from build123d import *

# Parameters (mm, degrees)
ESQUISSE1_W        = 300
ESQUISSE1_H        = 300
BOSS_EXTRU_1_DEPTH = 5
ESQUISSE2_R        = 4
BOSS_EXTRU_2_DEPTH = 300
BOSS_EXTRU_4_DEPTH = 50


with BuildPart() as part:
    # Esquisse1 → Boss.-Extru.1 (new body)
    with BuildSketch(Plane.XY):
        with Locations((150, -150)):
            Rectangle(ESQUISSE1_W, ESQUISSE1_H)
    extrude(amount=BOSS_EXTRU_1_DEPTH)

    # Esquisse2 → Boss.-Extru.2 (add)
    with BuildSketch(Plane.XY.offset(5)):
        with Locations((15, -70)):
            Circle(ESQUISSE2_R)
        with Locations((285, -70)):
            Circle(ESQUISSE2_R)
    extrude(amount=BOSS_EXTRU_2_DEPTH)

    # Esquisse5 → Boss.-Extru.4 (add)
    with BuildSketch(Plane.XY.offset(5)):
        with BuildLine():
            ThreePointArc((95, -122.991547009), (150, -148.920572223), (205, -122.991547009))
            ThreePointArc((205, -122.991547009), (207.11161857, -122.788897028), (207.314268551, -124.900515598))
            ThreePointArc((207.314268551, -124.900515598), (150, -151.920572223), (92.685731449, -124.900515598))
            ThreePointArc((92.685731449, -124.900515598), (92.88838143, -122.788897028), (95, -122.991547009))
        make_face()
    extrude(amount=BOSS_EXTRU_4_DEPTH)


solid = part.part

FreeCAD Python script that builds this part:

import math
import FreeCAD as App
import Part
import Sketcher
from FreeCAD import Vector

doc = App.newDocument("Part")
body = doc.addObject("PartDesign::Body", "Body")

# Sketch on XY plane
sketch1 = body.newObject("Sketcher::SketchObject", "Sketch")
sketch1.AttachmentSupport = (doc.getObject("XY_Plane"), [""])
sketch1.MapMode = "FlatFace"
sketch1.addGeometry(Part.LineSegment(Vector(0, 0, 0), Vector(0, -300, 0)), False)
sketch1.addGeometry(Part.LineSegment(Vector(0, -300, 0), Vector(300, -300, 0)), False)
sketch1.addGeometry(Part.LineSegment(Vector(300, -300, 0), Vector(300, 0, 0)), False)
sketch1.addGeometry(Part.LineSegment(Vector(300, 0, 0), Vector(0, 0, 0)), False)
sketch1.addConstraint(Sketcher.Constraint("Coincident", 0, 2, 1, 1))
sketch1.addConstraint(Sketcher.Constraint("Coincident", 1, 2, 2, 1))
sketch1.addConstraint(Sketcher.Constraint("Coincident", 2, 2, 3, 1))
sketch1.addConstraint(Sketcher.Constraint("Coincident", 3, 2, 0, 1))
sketch1.addConstraint(Sketcher.Constraint("Vertical", 0))
sketch1.addConstraint(Sketcher.Constraint("Horizontal", 1))
sketch1.addConstraint(Sketcher.Constraint("Vertical", 2))
sketch1.addConstraint(Sketcher.Constraint("Horizontal", 3))
sketch1.addConstraint(Sketcher.Constraint("Coincident", 3, 2, -1, 1))
sketch1.addConstraint(Sketcher.Constraint("Equal", 3, 0))
sketch1.addConstraint(Sketcher.Constraint("DistanceX", 1, 1, 1, 2, 300.0))
pad1 = body.newObject("PartDesign::Pad", "Pad")
pad1.Profile = sketch1
pad1.Length = 5

# Sketch on XY plane
sketch2 = body.newObject("Sketcher::SketchObject", "Sketch001")
sketch2.AttachmentSupport = (doc.getObject("XY_Plane"), [""])
sketch2.MapMode = "FlatFace"
sketch2.AttachmentOffset = App.Placement(Vector(0, 0, 5), App.Rotation())
sketch2.addGeometry(Part.Circle(Vector(15, -70, 0), Vector(0, 0, 1), 4), False)
sketch2.addGeometry(Part.Circle(Vector(285, -70, 0), Vector(0, 0, 1), 4), False)
sketch2.addConstraint(Sketcher.Constraint("Equal", 0, 1))
sketch2.addConstraint(Sketcher.Constraint("Horizontal", 0, 3, 1, 3))
sketch2.addConstraint(Sketcher.Constraint("Diameter", 0, 8.0))
sketch2.addConstraint(Sketcher.Constraint("DistanceX", -1, 1, 0, 3, 15.0))
sketch2.addConstraint(Sketcher.Constraint("DistanceY", 0, 3, -1, 1, 70.0))
sketch2.addConstraint(Sketcher.Constraint("DistanceX", -1, 1, 1, 3, 285.0))
pad2 = body.newObject("PartDesign::Pad", "Pad001")
pad2.Profile = sketch2
pad2.Length = 300

# Sketch on XY plane
sketch3 = body.newObject("Sketcher::SketchObject", "Sketch002")
sketch3.AttachmentSupport = (doc.getObject("XY_Plane"), [""])
sketch3.MapMode = "FlatFace"
sketch3.AttachmentOffset = App.Placement(Vector(0, 0, 5), App.Rotation())
sketch3.addGeometry(Part.ArcOfCircle(Part.Circle(Vector(150, -77.6, 0), Vector(0, 0, 1), 71.3), math.radians(-140), math.radians(-40)), False)
sketch3.addGeometry(Part.ArcOfCircle(Part.Circle(Vector(93.8, -123.9, 0), Vector(0, 0, 1), 1.5), math.radians(40), math.radians(220)), False)
sketch3.addGeometry(Part.ArcOfCircle(Part.Circle(Vector(150, -77.6, 0), Vector(0, 0, 1), 74.3), math.radians(-140), math.radians(-40)), False)
sketch3.addGeometry(Part.ArcOfCircle(Part.Circle(Vector(206.2, -123.9, 0), Vector(0, 0, 1), 1.5), math.radians(-40), math.radians(140)), False)
sketch3.addConstraint(Sketcher.Constraint("Tangent", 0, 1, 1, 1))
sketch3.addConstraint(Sketcher.Constraint("Tangent", 1, 2, 2, 1))
sketch3.addConstraint(Sketcher.Constraint("Tangent", 2, 2, 3, 1))
sketch3.addConstraint(Sketcher.Constraint("Tangent", 3, 2, 0, 2))
sketch3.addConstraint(Sketcher.Constraint("Coincident", 2, 3, 0, 3))
sketch3.addConstraint(Sketcher.Constraint("Horizontal", 1, 3, 3, 3))
sketch3.addConstraint(Sketcher.Constraint("Radius", 1, 1.5))
sketch3.addConstraint(Sketcher.Constraint("DistanceX", -1, 1, 0, 3, 150.0))
sketch3.addConstraint(Sketcher.Constraint("DistanceX", -1, 1, 0, 1, 95.0))
sketch3.addConstraint(Sketcher.Constraint("Radius", 0, 71.296825))
sketch3.addConstraint(Sketcher.Constraint("DistanceY", 1, 3, -1, 1, 123.946031))
pad3 = body.newObject("PartDesign::Pad", "Pad002")
pad3.Profile = sketch3
pad3.Length = 50

doc.recompute()
